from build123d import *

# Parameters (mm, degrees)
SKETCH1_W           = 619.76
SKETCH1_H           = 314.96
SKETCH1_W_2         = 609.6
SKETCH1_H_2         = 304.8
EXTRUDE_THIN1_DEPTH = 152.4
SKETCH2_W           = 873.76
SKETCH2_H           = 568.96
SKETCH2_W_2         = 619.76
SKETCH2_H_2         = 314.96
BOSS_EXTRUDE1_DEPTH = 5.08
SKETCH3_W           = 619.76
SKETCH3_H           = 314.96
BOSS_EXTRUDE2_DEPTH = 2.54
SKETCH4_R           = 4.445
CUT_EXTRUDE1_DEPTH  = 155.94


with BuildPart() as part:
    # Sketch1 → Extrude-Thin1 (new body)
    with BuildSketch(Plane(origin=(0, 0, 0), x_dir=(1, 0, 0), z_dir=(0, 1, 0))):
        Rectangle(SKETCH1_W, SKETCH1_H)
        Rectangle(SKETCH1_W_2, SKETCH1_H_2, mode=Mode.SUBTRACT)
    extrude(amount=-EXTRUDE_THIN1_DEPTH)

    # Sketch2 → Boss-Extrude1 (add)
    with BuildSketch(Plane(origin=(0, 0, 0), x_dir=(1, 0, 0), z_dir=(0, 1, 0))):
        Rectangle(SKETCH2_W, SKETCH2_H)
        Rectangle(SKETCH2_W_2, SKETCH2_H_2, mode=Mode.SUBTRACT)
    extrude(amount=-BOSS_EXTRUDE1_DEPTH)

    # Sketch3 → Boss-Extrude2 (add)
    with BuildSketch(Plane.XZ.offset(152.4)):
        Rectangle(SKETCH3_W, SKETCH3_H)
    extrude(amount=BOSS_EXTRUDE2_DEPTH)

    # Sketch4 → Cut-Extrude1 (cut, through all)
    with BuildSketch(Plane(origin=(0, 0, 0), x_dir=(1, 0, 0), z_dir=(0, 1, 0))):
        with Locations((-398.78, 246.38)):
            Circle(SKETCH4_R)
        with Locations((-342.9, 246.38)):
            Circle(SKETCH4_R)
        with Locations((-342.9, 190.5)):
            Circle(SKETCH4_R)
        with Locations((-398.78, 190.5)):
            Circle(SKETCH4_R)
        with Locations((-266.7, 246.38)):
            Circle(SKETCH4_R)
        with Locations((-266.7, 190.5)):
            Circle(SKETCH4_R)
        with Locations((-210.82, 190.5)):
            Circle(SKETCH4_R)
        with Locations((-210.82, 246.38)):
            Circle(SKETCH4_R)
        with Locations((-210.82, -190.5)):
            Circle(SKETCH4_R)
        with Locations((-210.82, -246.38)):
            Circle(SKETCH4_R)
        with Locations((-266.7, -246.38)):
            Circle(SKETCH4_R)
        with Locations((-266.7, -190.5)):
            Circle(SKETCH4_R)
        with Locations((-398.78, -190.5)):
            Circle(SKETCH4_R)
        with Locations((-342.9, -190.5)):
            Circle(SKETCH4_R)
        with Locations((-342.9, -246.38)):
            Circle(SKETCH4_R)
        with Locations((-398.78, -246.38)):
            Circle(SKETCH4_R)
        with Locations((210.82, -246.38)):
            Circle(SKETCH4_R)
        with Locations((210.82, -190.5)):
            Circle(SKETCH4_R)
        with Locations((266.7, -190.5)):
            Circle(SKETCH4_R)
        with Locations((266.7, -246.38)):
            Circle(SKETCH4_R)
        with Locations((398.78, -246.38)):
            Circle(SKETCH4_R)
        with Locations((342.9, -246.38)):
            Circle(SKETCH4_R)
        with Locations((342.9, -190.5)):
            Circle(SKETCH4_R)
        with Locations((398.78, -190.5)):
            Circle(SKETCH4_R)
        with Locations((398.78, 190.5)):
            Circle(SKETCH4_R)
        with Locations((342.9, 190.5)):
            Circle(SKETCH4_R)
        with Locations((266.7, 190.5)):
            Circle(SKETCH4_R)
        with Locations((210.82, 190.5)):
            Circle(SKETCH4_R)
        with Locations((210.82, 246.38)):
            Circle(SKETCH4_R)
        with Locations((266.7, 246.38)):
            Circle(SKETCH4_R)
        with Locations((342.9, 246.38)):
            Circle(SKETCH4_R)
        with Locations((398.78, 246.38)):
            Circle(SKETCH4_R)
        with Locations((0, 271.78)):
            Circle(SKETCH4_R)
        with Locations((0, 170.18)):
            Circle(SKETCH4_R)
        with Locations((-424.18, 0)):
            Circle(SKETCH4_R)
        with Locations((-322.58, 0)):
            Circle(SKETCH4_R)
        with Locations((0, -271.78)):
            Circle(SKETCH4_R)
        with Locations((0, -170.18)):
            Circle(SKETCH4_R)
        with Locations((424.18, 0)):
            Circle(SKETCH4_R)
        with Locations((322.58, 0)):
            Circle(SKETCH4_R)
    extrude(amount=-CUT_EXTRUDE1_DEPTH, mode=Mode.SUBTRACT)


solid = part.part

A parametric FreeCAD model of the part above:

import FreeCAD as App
import Part
import Sketcher
from FreeCAD import Vector
Q = App.Units.Quantity

doc = App.newDocument("Part")
body = doc.addObject("PartDesign::Body", "Body")

sketch1 = doc.addObject("Sketcher::SketchObject", "Sketch")
body.addObject(sketch1)
sketch1.AttachmentSupport = (doc.XZ_Plane, [""])
sketch1.MapMode = "FlatFace"
sketch1.addGeometry([
    Part.LineSegment(Vector(-309.88, -157.48, 0), Vector(-309.88, 157.48, 0)),
    Part.LineSegment(Vector(-309.88, 157.48, 0), Vector(309.88, 157.48, 0)),
    Part.LineSegment(Vector(309.88, 157.48, 0), Vector(309.88, -157.48, 0)),
    Part.LineSegment(Vector(309.88, -157.48, 0), Vector(-309.88, -157.48, 0)),
    Part.LineSegment(Vector(304.8, 152.4, 0), Vector(-304.8, 152.4, 0)),
    Part.LineSegment(Vector(-304.8, 152.4, 0), Vector(-304.8, -152.4, 0)),
    Part.LineSegment(Vector(-304.8, -152.4, 0), Vector(304.8, -152.4, 0)),
    Part.LineSegment(Vector(304.8, -152.4, 0), Vector(304.8, 152.4, 0)),
], False)
sketch1.addConstraint([
    Sketcher.Constraint("Coincident", 0, 2, 1, 1),
    Sketcher.Constraint("Coincident", 1, 2, 2, 1),
    Sketcher.Constraint("Coincident", 2, 2, 3, 1),
    Sketcher.Constraint("Coincident", 3, 2, 0, 1),
    Sketcher.Constraint("Coincident", 4, 2, 5, 1),
    Sketcher.Constraint("Coincident", 5, 2, 6, 1),
    Sketcher.Constraint("Coincident", 6, 2, 7, 1),
    Sketcher.Constraint("Coincident", 7, 2, 4, 1),
    Sketcher.Constraint("Vertical", 0),
    Sketcher.Constraint("Horizontal", 1),
    Sketcher.Constraint("Vertical", 2),
    Sketcher.Constraint("Horizontal", 3),
    Sketcher.Constraint("Horizontal", 4),
    Sketcher.Constraint("Vertical", 5),
    Sketcher.Constraint("Horizontal", 6),
    Sketcher.Constraint("Vertical", 7),
    Sketcher.Constraint("Symmetric", 0, 2, 2, 2, -1, 1),
    Sketcher.Constraint("Symmetric", 4, 2, 6, 2, -1, 1),
    Sketcher.Constraint("DistanceX", 4, 2, 4, 1, Q("24 in")),
    Sketcher.Constraint("DistanceY", 5, 2, 5, 1, Q("12 in")),
    Sketcher.Constraint("DistanceX", 1, 1, 1, 2, Q("24.4 in")),
    Sketcher.Constraint("DistanceY", 0, 1, 0, 2, Q("12.4 in")),
])
pad1 = doc.addObject("PartDesign::Pad", "Pad")
body.addObject(pad1)
pad1.Profile = sketch1
pad1.Length = Q("6 in")

sketch2 = doc.addObject("Sketcher::SketchObject", "Sketch001")
body.addObject(sketch2)
sketch2.AttachmentSupport = (doc.XZ_Plane, [""])
sketch2.MapMode = "FlatFace"
sketch2.addGeometry([
    Part.LineSegment(Vector(-436.88, -284.48, 0), Vector(-436.88, 284.48, 0)),
    Part.LineSegment(Vector(-436.88, 284.48, 0), Vector(436.88, 284.48, 0)),
    Part.LineSegment(Vector(436.88, 284.48, 0), Vector(436.88, -284.48, 0)),
    Part.LineSegment(Vector(436.88, -284.48, 0), Vector(-436.88, -284.48, 0)),
    Part.LineSegment(Vector(309.88, 157.48, 0), Vector(-309.88, 157.48, 0)),
    Part.LineSegment(Vector(-309.88, 157.48, 0), Vector(-309.88, -157.48, 0)),
    Part.LineSegment(Vector(-309.88, -157.48, 0), Vector(309.88, -157.48, 0)),
    Part.LineSegment(Vector(309.88, -157.48, 0), Vector(309.88, 157.48, 0)),
], False)
sketch2.addConstraint([
    Sketcher.Constraint("Coincident", 0, 2, 1, 1),
    Sketcher.Constraint("Coincident", 1, 2, 2, 1),
    Sketcher.Constraint("Coincident", 2, 2, 3, 1),
    Sketcher.Constraint("Coincident", 3, 2, 0, 1),
    Sketcher.Constraint("Coincident", 4, 2, 5, 1),
    Sketcher.Constraint("Coincident", 5, 2, 6, 1),
    Sketcher.Constraint("Coincident", 6, 2, 7, 1),
    Sketcher.Constraint("Coincident", 7, 2, 4, 1),
    Sketcher.Constraint("Vertical", 0),
    Sketcher.Constraint("Horizontal", 1),
    Sketcher.Constraint("Vertical", 2),
    Sketcher.Constraint("Horizontal", 3),
    Sketcher.Constraint("Horizontal", 4),
    Sketcher.Constraint("Vertical", 5),
    Sketcher.Constraint("Horizontal", 6),
    Sketcher.Constraint("Vertical", 7),
    Sketcher.Constraint("Symmetric", 0, 2, 2, 2, -1, 1),
    Sketcher.Constraint("Symmetric", 4, 2, 6, 2, -1, 1),
    Sketcher.Constraint("DistanceX", 1, 1, 1, 2, Q("34.4 in")),
    Sketcher.Constraint("DistanceX", 4, 2, 4, 1, Q("24.4 in")),
    Sketcher.Constraint("DistanceY", 0, 1, 0, 2, Q("22.4 in")),
    Sketcher.Constraint("DistanceY", 5, 2, 5, 1, Q("12.4 in")),
])
pad2 = doc.addObject("PartDesign::Pad", "Pad001")
body.addObject(pad2)
pad2.Profile = sketch2
pad2.Length = Q("0.2 in")

sketch3 = doc.addObject("Sketcher::SketchObject", "Sketch002")
body.addObject(sketch3)
sketch3.AttachmentSupport = (doc.XZ_Plane, [""])
sketch3.MapMode = "FlatFace"
sketch3.AttachmentOffset = App.Placement(Vector(0, 0, 6 * 25.4), App.Rotation())
sketch3.addGeometry([
    Part.LineSegment(Vector(-309.88, 157.48, 0), Vector(-309.88, -157.48, 0)),
    Part.LineSegment(Vector(-309.88, -157.48, 0), Vector(309.88, -157.48, 0)),
    Part.LineSegment(Vector(309.88, -157.48, 0), Vector(309.88, 157.48, 0)),
    Part.LineSegment(Vector(309.88, 157.48, 0), Vector(-309.88, 157.48, 0)),
], False)
sketch3.addConstraint([
    Sketcher.Constraint("Coincident", 0, 2, 1, 1),
    Sketcher.Constraint("Coincident", 1, 2, 2, 1),
    Sketcher.Constraint("Coincident", 2, 2, 3, 1),
    Sketcher.Constraint("Coincident", 3, 2, 0, 1),
    Sketcher.Constraint("Vertical", 0),
    Sketcher.Constraint("Horizontal", 1),
    Sketcher.Constraint("Vertical", 2),
    Sketcher.Constraint("Horizontal", 3),
    Sketcher.Constraint("Symmetric", 0, 2, 2, 2, -1, 1),
    Sketcher.Constraint("DistanceX", 1, 1, 1, 2, Q("24.4 in")),
    Sketcher.Constraint("DistanceY", 0, 2, 0, 1, Q("12.4 in")),
])
pad3 = doc.addObject("PartDesign::Pad", "Pad002")
body.addObject(pad3)
pad3.Profile = sketch3
pad3.Length = Q("0.1 in")

sketch4 = doc.addObject("Sketcher::SketchObject", "Sketch003")
body.addObject(sketch4)
sketch4.AttachmentSupport = (doc.XZ_Plane, [""])
sketch4.MapMode = "FlatFace"
sketch4.addGeometry([
    Part.Circle(Vector(-398.78, -246.38, 0), Vector(0, 0, 1), 4.445),
    Part.Circle(Vector(-342.9, -246.38, 0), Vector(0, 0, 1), 4.445),
    Part.Circle(Vector(-342.9, -190.5, 0), Vector(0, 0, 1), 4.445),
    Part.Circle(Vector(-398.78, -190.5, 0), Vector(0, 0, 1), 4.445),
    Part.Circle(Vector(-266.7, -246.38, 0), Vector(0, 0, 1), 4.445),
    Part.Circle(Vector(-266.7, -190.5, 0), Vector(0, 0, 1), 4.445),
    Part.Circle(Vector(-210.82, -190.5, 0), Vector(0, 0, 1), 4.445),
    Part.Circle(Vector(-210.82, -246.38, 0), Vector(0, 0, 1), 4.445),
    Part.Circle(Vector(-210.82, 190.5, 0), Vector(0, 0, 1), 4.445),
    Part.Circle(Vector(-210.82, 246.38, 0), Vector(0, 0, 1), 4.445),
    Part.Circle(Vector(-266.7, 246.38, 0), Vector(0, 0, 1), 4.445),
    Part.Circle(Vector(-266.7, 190.5, 0), Vector(0, 0, 1), 4.445),
    Part.Circle(Vector(-398.78, 190.5, 0), Vector(0, 0, 1), 4.445),
    Part.Circle(Vector(-342.9, 190.5, 0), Vector(0, 0, 1), 4.445),
    Part.Circle(Vector(-342.9, 246.38, 0), Vector(0, 0, 1), 4.445),
    Part.Circle(Vector(-398.78, 246.38, 0), Vector(0, 0, 1), 4.445),
    Part.Circle(Vector(210.82, 246.38, 0), Vector(0, 0, 1), 4.445),
    Part.Circle(Vector(210.82, 190.5, 0), Vector(0, 0, 1), 4.445),
    Part.Circle(Vector(266.7, 190.5, 0), Vector(0, 0, 1), 4.445),
    Part.Circle(Vector(266.7, 246.38, 0), Vector(0, 0, 1), 4.445),
    Part.Circle(Vector(398.78, 246.38, 0), Vector(0, 0, 1), 4.445),
    Part.Circle(Vector(342.9, 246.38, 0), Vector(0, 0, 1), 4.445),
    Part.Circle(Vector(342.9, 190.5, 0), Vector(0, 0, 1), 4.445),
    Part.Circle(Vector(398.78, 190.5, 0), Vector(0, 0, 1), 4.445),
    Part.Circle(Vector(398.78, -190.5, 0), Vector(0, 0, 1), 4.445),
    Part.Circle(Vector(342.9, -190.5, 0), Vector(0, 0, 1), 4.445),
    Part.Circle(Vector(266.7, -190.5, 0), Vector(0, 0, 1), 4.445),
    Part.Circle(Vector(210.82, -190.5, 0), Vector(0, 0, 1), 4.445),
    Part.Circle(Vector(210.82, -246.38, 0), Vector(0, 0, 1), 4.445),
    Part.Circle(Vector(266.7, -246.38, 0), Vector(0, 0, 1), 4.445),
    Part.Circle(Vector(342.9, -246.38, 0), Vector(0, 0, 1), 4.445),
    Part.Circle(Vector(398.78, -246.38, 0), Vector(0, 0, 1), 4.445),
    Part.Circle(Vector(0, -271.78, 0), Vector(0, 0, 1), 4.445),
    Part.Circle(Vector(0, -170.18, 0), Vector(0, 0, 1), 4.445),
    Part.Circle(Vector(-424.18, 0, 0), Vector(0, 0, 1), 4.445),
    Part.Circle(Vector(-322.58, 0, 0), Vector(0, 0, 1), 4.445),
    Part.Circle(Vector(0, 271.78, 0), Vector(0, 0, 1), 4.445),
    Part.Circle(Vector(0, 170.18, 0), Vector(0, 0, 1), 4.445),
    Part.Circle(Vector(424.18, 0, 0), Vector(0, 0, 1), 4.445),
    Part.Circle(Vector(322.58, 0, 0), Vector(0, 0, 1), 4.445),
], False)
sketch4.addConstraint([
    Sketcher.Constraint("Equal", 0, 1),
    Sketcher.Constraint("Equal", 1, 2),
    Sketcher.Constraint("Equal", 2, 3),
    Sketcher.Constraint("Equal", 3, 4),
    Sketcher.Constraint("Equal", 4, 5),
    Sketcher.Constraint("Equal", 5, 6),
    Sketcher.Constraint("Equal", 6, 7),
    Sketcher.Constraint("Equal", 7, 8),
    Sketcher.Constraint("Equal", 8, 9),
    Sketcher.Constraint("Equal", 9, 10),
    Sketcher.Constraint("Equal", 10, 11),
    Sketcher.Constraint("Equal", 11, 12),
    Sketcher.Constraint("Equal", 12, 13),
    Sketcher.Constraint("Equal", 13, 14),
    Sketcher.Constraint("Equal", 14, 15),
    Sketcher.Constraint("Equal", 15, 16),
    Sketcher.Constraint("Equal", 16, 17),
    Sketcher.Constraint("Equal", 17, 18),
    Sketcher.Constraint("Equal", 18, 19),
    Sketcher.Constraint("Equal", 19, 20),
    Sketcher.Constraint("Equal", 20, 21),
    Sketcher.Constraint("Equal", 21, 22),
    Sketcher.Constraint("Equal", 22, 23),
    Sketcher.Constraint("Equal", 23, 24),
    Sketcher.Constraint("Equal", 24, 25),
    Sketcher.Constraint("Equal", 25, 26),
    Sketcher.Constraint("Equal", 26, 27),
    Sketcher.Constraint("Equal", 27, 28),
    Sketcher.Constraint("Equal", 28, 29),
    Sketcher.Constraint("Equal", 29, 30),
    Sketcher.Constraint("Equal", 30, 31),
    Sketcher.Constraint("Equal", 31, 32),
    Sketcher.Constraint("Equal", 32, 33),
    Sketcher.Constraint("Equal", 33, 34),
    Sketcher.Constraint("Equal", 34, 35),
    Sketcher.Constraint("Equal", 35, 36),
    Sketcher.Constraint("Equal", 36, 37),
    Sketcher.Constraint("Equal", 37, 38),
    Sketcher.Constraint("Equal", 38, 39),
    Sketcher.Constraint("Symmetric", 7, 3, 16, 3, -1, 1),
    Sketcher.Constraint("Symmetric", 6, 3, 17, 3, -1, 1),
    Sketcher.Constraint("Symmetric", 5, 3, 18, 3, -1, 1),
    Sketcher.Constraint("Symmetric", 4, 3, 19, 3, -1, 1),
    Sketcher.Constraint("Symmetric", 0, 3, 20, 3, -1, 1),
    Sketcher.Constraint("Symmetric", 1, 3, 21, 3, -1, 1),
    Sketcher.Constraint("Symmetric", 2, 3, 22, 3, -1, 1),
    Sketcher.Constraint("Symmetric", 3, 3, 23, 3, -1, 1),
    Sketcher.Constraint("Symmetric", 12, 3, 24, 3, -1, 1),
    Sketcher.Constraint("Symmetric", 13, 3, 25, 3, -1, 1),
    Sketcher.Constraint("Symmetric", 11, 3, 26, 3, -1, 1),
    Sketcher.Constraint("Symmetric", 8, 3, 27, 3, -1, 1),
    Sketcher.Constraint("Symmetric", 9, 3, 28, 3, -1, 1),
    Sketcher.Constraint("Symmetric", 10, 3, 29, 3, -1, 1),
    Sketcher.Constraint("Symmetric", 14, 3, 30, 3, -1, 1),
    Sketcher.Constraint("Symmetric", 15, 3, 31, 3, -1, 1),
    Sketcher.Constraint("Symmetric", 32, 3, 36, 3, -1, 1),
    Sketcher.Constraint("Symmetric", 33, 3, 37, 3, -1, 1),
    Sketcher.Constraint("Symmetric", 34, 3, 38, 3, -1, 1),
    Sketcher.Constraint("Symmetric", 35, 3, 39, 3, -1, 1),
    Sketcher.Constraint("Symmetric", 9, 3, 16, 3, -2),
    Sketcher.Constraint("Symmetric", 8, 3, 17, 3, -2),
    Sketcher.Constraint("Symmetric", 11, 3, 18, 3, -2),
    Sketcher.Constraint("Symmetric", 10, 3, 19, 3, -2),
    Sketcher.Constraint("Symmetric", 15, 3, 20, 3, -2),
    Sketcher.Constraint("Symmetric", 14, 3, 21, 3, -2),
    Sketcher.Constraint("Symmetric", 13, 3, 22, 3, -2),
    Sketcher.Constraint("Symmetric", 12, 3, 23, 3, -2),
    Sketcher.Constraint("PointOnObject", 32, 3, -2),
    Sketcher.Constraint("PointOnObject", 33, 3, -2),
    Sketcher.Constraint("PointOnObject", 34, 3, -1),
    Sketcher.Constraint("PointOnObject", 35, 3, -1),
    Sketcher.Constraint("Horizontal", 0, 3, 1, 3),
    Sketcher.Constraint("Horizontal", 2, 3, 3, 3),
    Sketcher.Constraint("Horizontal", 1, 3, 4, 3),
    Sketcher.Constraint("Horizontal", 3, 3, 5, 3),
    Sketcher.Constraint("Horizontal", 5, 3, 6, 3),
    Sketcher.Constraint("Horizontal", 4, 3, 7, 3),
    Sketcher.Constraint("Vertical", 1, 3, 2, 3),
    Sketcher.Constraint("Vertical", 0, 3, 3, 3),
    Sketcher.Constraint("Vertical", 4, 3, 5, 3),
    Sketcher.Constraint("Vertical", 6, 3, 7, 3),
    Sketcher.Constraint("Diameter", 0, Q("0.35 in")),
    Sketcher.Constraint("DistanceX", 1, 3, 4, 3, Q("3 in")),
    Sketcher.Constraint("DistanceY", 6, 3, 8, 3, Q("15 in")),
    Sketcher.Constraint("DistanceX", 11, 3, 18, 3, Q("21 in")),
    Sketcher.Constraint("DistanceX", 9, 3, 20, 3, Q("24 in")),
    Sketcher.Constraint("DistanceY", 32, 3, 7, 3, Q("1 in")),
    Sketcher.Constraint("DistanceY", 32, 3, 33, 3, Q("4 in")),
    Sketcher.Constraint("DistanceX", 34, 3, 3, 3, Q("1 in")),
    Sketcher.Constraint("DistanceX", 34, 3, 35, 3, Q("4 in")),
    Sketcher.Constraint("DistanceX", 0, 3, -1, 1, Q("15.7 in")),
    Sketcher.Constraint("DistanceY", 0, 3, -1, 1, Q("9.7 in")),
])
pocket1 = doc.addObject("PartDesign::Pocket", "Pocket")
body.addObject(pocket1)
pocket1.Profile = sketch4
pocket1.Type = "ThroughAll"
pocket1.Reversed = True

doc.recompute()
